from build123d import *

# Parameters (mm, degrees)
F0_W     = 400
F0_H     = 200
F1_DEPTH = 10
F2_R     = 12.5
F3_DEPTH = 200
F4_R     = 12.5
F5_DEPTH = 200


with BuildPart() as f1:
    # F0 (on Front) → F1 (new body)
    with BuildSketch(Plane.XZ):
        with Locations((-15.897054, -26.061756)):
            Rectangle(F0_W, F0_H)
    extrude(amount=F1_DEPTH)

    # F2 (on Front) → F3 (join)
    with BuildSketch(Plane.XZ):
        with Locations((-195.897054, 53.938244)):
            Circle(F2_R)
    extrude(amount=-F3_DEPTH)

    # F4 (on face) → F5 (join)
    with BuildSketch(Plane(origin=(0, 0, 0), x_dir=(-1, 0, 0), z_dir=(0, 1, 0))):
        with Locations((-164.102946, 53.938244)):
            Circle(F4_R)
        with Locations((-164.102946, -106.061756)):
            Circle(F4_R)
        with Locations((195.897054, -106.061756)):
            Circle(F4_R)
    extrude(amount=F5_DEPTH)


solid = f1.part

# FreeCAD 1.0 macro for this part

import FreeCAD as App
import Part
import Sketcher

V = App.Vector
Q = App.Units.Quantity

doc = App.newDocument("Part")
body = doc.addObject("PartDesign::Body", "Body")

sketch1 = body.newObject("Sketcher::SketchObject", "Sketch")
sketch1.AttachmentSupport = (doc.getObject("XZ_Plane"), [""])
sketch1.MapMode = "FlatFace"
sketch1.addGeometry([
    Part.LineSegment(V(-216, 74, 0), V(-216, -126, 0)),
    Part.LineSegment(V(-216, -126, 0), V(184, -126, 0)),
    Part.LineSegment(V(184, -126, 0), V(184, 74, 0)),
    Part.LineSegment(V(184, 74, 0), V(-216, 74, 0)),
], False)
sketch1.addConstraint([
    Sketcher.Constraint("Coincident", 0, 2, 1, 1),
    Sketcher.Constraint("Coincident", 1, 2, 2, 1),
    Sketcher.Constraint("Coincident", 2, 2, 3, 1),
    Sketcher.Constraint("Coincident", 3, 2, 0, 1),
    Sketcher.Constraint("Vertical", 0),
    Sketcher.Constraint("Horizontal", 1),
    Sketcher.Constraint("Vertical", 2),
    Sketcher.Constraint("Horizontal", 3),
    Sketcher.Constraint("DistanceX", 1, 1, 1, 2, Q("400 mm")),
    Sketcher.Constraint("DistanceY", 0, 2, 0, 1, Q("200 mm")),
    Sketcher.Constraint("DistanceX", 0, 2, -1, 1, Q("215.897054 mm")),
    Sketcher.Constraint("DistanceY", 0, 2, -1, 1, Q("126.061756 mm")),
])
pad1 = body.newObject("PartDesign::Pad", "Pad")
pad1.Profile = sketch1
pad1.Length = 10

sketch2 = body.newObject("Sketcher::SketchObject", "Sketch001")
sketch2.AttachmentSupport = (doc.getObject("XZ_Plane"), [""])
sketch2.MapMode = "FlatFace"
sketch2.addGeometry(Part.Circle(V(-196, 54, 0), V(0, 0, 1), 12), False)
sketch2.addConstraint([
    Sketcher.Constraint("Diameter", 0, Q("25 mm")),
    Sketcher.Constraint("DistanceX", 0, 3, -1, 1, Q("195.897054 mm")),
    Sketcher.Constraint("DistanceY", -1, 1, 0, 3, Q("53.938244 mm")),
])
pad2 = body.newObject("PartDesign::Pad", "Pad001")
pad2.Profile = sketch2
pad2.Length = 200
pad2.Reversed = True

sketch3 = body.newObject("Sketcher::SketchObject", "Sketch002")
sketch3.AttachmentSupport = (doc.getObject("XZ_Plane"), [""])
sketch3.MapMode = "FlatFace"
sketch3.addGeometry([
    Part.Circle(V(164, 54, 0), V(0, 0, 1), 12),
    Part.Circle(V(164, -106, 0), V(0, 0, 1), 12),
    Part.Circle(V(-196, -106, 0), V(0, 0, 1), 12),
], False)
sketch3.addConstraint([
    Sketcher.Constraint("Equal", 0, 1),
    Sketcher.Constraint("Equal", 1, 2),
    Sketcher.Constraint("Horizontal", 1, 3, 2, 3),
    Sketcher.Constraint("Vertical", 0, 3, 1, 3),
    Sketcher.Constraint("Diameter", 0, Q("25 mm")),
    Sketcher.Constraint("DistanceY", 1, 3, 0, 3, Q("160 mm")),
    Sketcher.Constraint("DistanceX", 2, 3, 1, 3, Q("360 mm")),
    Sketcher.Constraint("DistanceX", -1, 1, 0, 3, Q("164.102946 mm")),
    Sketcher.Constraint("DistanceY", -1, 1, 0, 3, Q("53.938244 mm")),
])
pad3 = body.newObject("PartDesign::Pad", "Pad002")
pad3.Profile = sketch3
pad3.Length = 200
pad3.Reversed = True

doc.recompute()
